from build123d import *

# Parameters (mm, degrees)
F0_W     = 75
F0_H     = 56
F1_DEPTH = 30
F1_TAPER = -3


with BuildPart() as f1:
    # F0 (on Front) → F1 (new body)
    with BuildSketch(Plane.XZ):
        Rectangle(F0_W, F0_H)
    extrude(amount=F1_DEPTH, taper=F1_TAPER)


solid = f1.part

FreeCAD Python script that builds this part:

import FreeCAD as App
import Part
import Sketcher
from FreeCAD import Vector


def add_polygon(sketch, points):
    """Adds a closed chain of lines whose ends are joined by coincident constraints."""
    first, n = sketch.GeometryCount, len(points)
    for a, b in zip(points, points[1:] + points[:1]):
        sketch.addGeometry(Part.LineSegment(App.Vector(*a, 0), App.Vector(*b, 0)), False)
    for i in range(n):
        sketch.addConstraint(Sketcher.Constraint("Coincident", first + i, 2, first + (i + 1) % n, 1))

doc = App.newDocument("Part")
params = doc.addObject("Spreadsheet::Sheet", "Params")
for row, (alias, value) in enumerate([
    ("sketch1_width", "75 mm"),
    ("sketch1_height", "56 mm"),
    ("pad1_length", "30 mm"),
    ("pad1_taper", "3 deg"),
], start=1):
    params.set(f"A{row}", alias)
    params.set(f"B{row}", "=" + value)
    params.setAlias(f"B{row}", alias)

body = doc.addObject("PartDesign::Body", "Body")

# Sketch on XZ plane
sketch1 = body.newObject("Sketcher::SketchObject", "Sketch")
sketch1.AttachmentSupport = (doc.getObject("XZ_Plane"), [""])
sketch1.MapMode = "FlatFace"
add_polygon(sketch1, [(-38, 28), (-38, -28), (38, -28), (38, 28)])  # lines 0-3
sketch1.addConstraint([
    Sketcher.Constraint("Vertical", 0),
    Sketcher.Constraint("Horizontal", 1),
    Sketcher.Constraint("Vertical", 2),
    Sketcher.Constraint("Horizontal", 3),
    Sketcher.Constraint("Symmetric", 0, 2, 2, 2, -1, 1),
    Sketcher.Constraint("DistanceX", 1, 1, 1, 2, 75.0),
    Sketcher.Constraint("DistanceY", 0, 2, 0, 1, 56.0),
])
sketch1.setExpression("Constraints[9]", "Params.sketch1_width")
sketch1.setExpression("Constraints[10]", "Params.sketch1_height")
pad1 = body.newObject("PartDesign::Pad", "Pad")
pad1.Profile = sketch1
pad1.setExpression("Length", "Params.pad1_length")
pad1.setExpression("TaperAngle", "Params.pad1_taper")

doc.recompute()
